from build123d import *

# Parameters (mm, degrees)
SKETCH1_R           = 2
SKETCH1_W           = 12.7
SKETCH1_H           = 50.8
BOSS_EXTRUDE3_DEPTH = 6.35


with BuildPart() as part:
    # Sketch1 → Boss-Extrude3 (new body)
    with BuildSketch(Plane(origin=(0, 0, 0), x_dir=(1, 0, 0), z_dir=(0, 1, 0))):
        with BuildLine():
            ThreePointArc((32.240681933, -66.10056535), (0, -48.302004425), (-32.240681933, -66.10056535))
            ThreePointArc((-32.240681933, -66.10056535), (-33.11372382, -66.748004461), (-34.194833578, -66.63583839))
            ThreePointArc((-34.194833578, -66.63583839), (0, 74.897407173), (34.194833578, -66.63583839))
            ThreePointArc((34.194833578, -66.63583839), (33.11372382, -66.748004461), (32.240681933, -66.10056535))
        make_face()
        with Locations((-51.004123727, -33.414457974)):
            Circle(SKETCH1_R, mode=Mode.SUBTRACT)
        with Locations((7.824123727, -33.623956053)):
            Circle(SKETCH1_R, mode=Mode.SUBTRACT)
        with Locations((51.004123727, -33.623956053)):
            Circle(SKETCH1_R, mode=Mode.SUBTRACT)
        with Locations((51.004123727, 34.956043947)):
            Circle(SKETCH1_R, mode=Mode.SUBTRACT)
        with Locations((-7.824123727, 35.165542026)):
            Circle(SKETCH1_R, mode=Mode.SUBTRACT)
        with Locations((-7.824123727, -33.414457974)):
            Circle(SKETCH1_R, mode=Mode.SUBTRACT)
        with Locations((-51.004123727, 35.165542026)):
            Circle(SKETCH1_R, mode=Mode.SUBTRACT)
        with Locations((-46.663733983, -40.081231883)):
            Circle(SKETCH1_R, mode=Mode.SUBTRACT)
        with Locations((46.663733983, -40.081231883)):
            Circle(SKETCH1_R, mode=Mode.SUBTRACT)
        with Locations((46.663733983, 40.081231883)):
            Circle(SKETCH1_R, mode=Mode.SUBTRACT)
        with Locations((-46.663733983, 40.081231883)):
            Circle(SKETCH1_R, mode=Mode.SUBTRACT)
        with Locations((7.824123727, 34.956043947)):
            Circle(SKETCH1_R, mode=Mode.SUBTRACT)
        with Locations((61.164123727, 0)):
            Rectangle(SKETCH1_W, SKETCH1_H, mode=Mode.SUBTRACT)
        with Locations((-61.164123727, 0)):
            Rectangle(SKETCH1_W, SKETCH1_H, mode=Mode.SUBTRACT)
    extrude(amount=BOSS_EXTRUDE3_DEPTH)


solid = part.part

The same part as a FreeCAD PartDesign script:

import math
import FreeCAD as App
import Part
import Sketcher
from FreeCAD import Vector
Q = App.Units.Quantity

doc = App.newDocument("Part")
body = doc.addObject("PartDesign::Body", "Body")

sketch1 = body.newObject("Sketcher::SketchObject", "Sketch")
sketch1.AttachmentSupport = (doc.getObject("XZ_Plane"), [""])
sketch1.MapMode = "FlatFace"
sketch1.addGeometry([
    Part.ArcOfCircle(Part.Circle(Vector(0, 86.4, 0), Vector(0, 0, 1), 38.1), math.radians(-148), math.radians(-32)),
    Part.ArcOfCircle(Part.Circle(Vector(33.5, 65.3, 0), Vector(0, 0, 1), 1.5), math.radians(63), math.radians(148)),
    Part.ArcOfCircle(Part.Circle(Vector(0, 0, 0), Vector(0, 0, 1), 74.9), math.radians(117), math.radians(423)),
    Part.ArcOfCircle(Part.Circle(Vector(-33.5, 65.3, 0), Vector(0, 0, 1), 1.5), math.radians(32), math.radians(117)),
    Part.Circle(Vector(51, 33.6, 0), Vector(0, 0, 1), 2),
    Part.Circle(Vector(46.7, 40.1, 0), Vector(0, 0, 1), 2),
    Part.Circle(Vector(7.8, 33.6, 0), Vector(0, 0, 1), 2),
    Part.Circle(Vector(-7.8, 33.4, 0), Vector(0, 0, 1), 2),
    Part.Circle(Vector(-46.7, 40.1, 0), Vector(0, 0, 1), 2),
    Part.Circle(Vector(-51, 33.4, 0), Vector(0, 0, 1), 2),
    Part.LineSegment(Vector(54.8, 25.4, 0), Vector(54.8, -25.4, 0)),
    Part.LineSegment(Vector(54.8, -25.4, 0), Vector(67.5, -25.4, 0)),
    Part.LineSegment(Vector(67.5, -25.4, 0), Vector(67.5, 25.4, 0)),
    Part.LineSegment(Vector(67.5, 25.4, 0), Vector(54.8, 25.4, 0)),
    Part.Circle(Vector(51, -35, 0), Vector(0, 0, 1), 2),
    Part.Circle(Vector(46.7, -40.1, 0), Vector(0, 0, 1), 2),
    Part.Circle(Vector(7.8, -35, 0), Vector(0, 0, 1), 2),
    Part.LineSegment(Vector(-67.5, 25.4, 0), Vector(-67.5, -25.4, 0)),
    Part.LineSegment(Vector(-67.5, -25.4, 0), Vector(-54.8, -25.4, 0)),
    Part.LineSegment(Vector(-54.8, -25.4, 0), Vector(-54.8, 25.4, 0)),
    Part.LineSegment(Vector(-54.8, 25.4, 0), Vector(-67.5, 25.4, 0)),
    Part.Circle(Vector(-7.8, -35.2, 0), Vector(0, 0, 1), 2),
    Part.Circle(Vector(-46.7, -40.1, 0), Vector(0, 0, 1), 2),
    Part.Circle(Vector(-51, -35.2, 0), Vector(0, 0, 1), 2),
], False)
sketch1.addConstraint([
    Sketcher.Constraint("Tangent", 0, 2, 1, 2),
    Sketcher.Constraint("Tangent", 1, 1, 2, 2),
    Sketcher.Constraint("Tangent", 2, 1, 3, 2),
    Sketcher.Constraint("Tangent", 3, 1, 0, 1),
    Sketcher.Constraint("Coincident", 10, 2, 11, 1),
    Sketcher.Constraint("Coincident", 11, 2, 12, 1),
    Sketcher.Constraint("Coincident", 12, 2, 13, 1),
    Sketcher.Constraint("Coincident", 13, 2, 10, 1),
    Sketcher.Constraint("Coincident", 17, 2, 18, 1),
    Sketcher.Constraint("Coincident", 18, 2, 19, 1),
    Sketcher.Constraint("Coincident", 19, 2, 20, 1),
    Sketcher.Constraint("Coincident", 20, 2, 17, 1),
    Sketcher.Constraint("Vertical", 10),
    Sketcher.Constraint("Horizontal", 11),
    Sketcher.Constraint("Vertical", 12),
    Sketcher.Constraint("Horizontal", 13),
    Sketcher.Constraint("Vertical", 17),
    Sketcher.Constraint("Horizontal", 18),
    Sketcher.Constraint("Vertical", 19),
    Sketcher.Constraint("Horizontal", 20),
    Sketcher.Constraint("Coincident", 2, 3, -1, 1),
    Sketcher.Constraint("Equal", 1, 3),
    Sketcher.Constraint("Equal", 4, 5),
    Sketcher.Constraint("Equal", 5, 6),
    Sketcher.Constraint("Equal", 6, 7),
    Sketcher.Constraint("Equal", 7, 8),
    Sketcher.Constraint("Equal", 8, 9),
    Sketcher.Constraint("Equal", 9, 14),
    Sketcher.Constraint("Equal", 14, 15),
    Sketcher.Constraint("Equal", 15, 16),
    Sketcher.Constraint("Equal", 16, 21),
    Sketcher.Constraint("Equal", 21, 22),
    Sketcher.Constraint("Equal", 22, 23),
    Sketcher.Constraint("Symmetric", 8, 3, 15, 3, -1, 1),
    Sketcher.Constraint("Symmetric", 5, 3, 22, 3, -1, 1),
    Sketcher.Constraint("Symmetric", 12, 2, 17, 2, -1, 1),
    Sketcher.Constraint("Symmetric", 10, 2, 19, 2, -1, 1),
    Sketcher.Constraint("Symmetric", 5, 3, 8, 3, -2),
    Sketcher.Constraint("PointOnObject", 0, 3, -2),
    Sketcher.Constraint("Horizontal", 4, 3, 6, 3),
    Sketcher.Constraint("Horizontal", 7, 3, 9, 3),
    Sketcher.Constraint("Horizontal", 14, 3, 16, 3),
    Sketcher.Constraint("Horizontal", 21, 3, 23, 3),
    Sketcher.Constraint("Horizontal", 11, 2, 17, 2),
    Sketcher.Constraint("Vertical", 4, 3, 14, 3),
    Sketcher.Constraint("Vertical", 6, 3, 16, 3),
    Sketcher.Constraint("Vertical", 7, 3, 21, 3),
    Sketcher.Constraint("Vertical", 9, 3, 23, 3),
    Sketcher.Constraint("Radius", 0, Q("1.5 in")),
    Sketcher.Constraint("DistanceY", 10, 2, 10, 1, Q("2 in")),
    Sketcher.Constraint("DistanceX", 11, 1, 11, 2, Q("0.5 in")),
    Sketcher.Constraint("DistanceX", 6, 3, 4, 3, Q("1.7 in")),
    Sketcher.Constraint("DistanceX", 9, 3, 7, 3, Q("1.7 in")),
    Sketcher.Constraint("DistanceY", 14, 3, 4, 3, Q("2.7 in")),
    Sketcher.Constraint("DistanceY", 21, 3, 7, 3, Q("2.7 in")),
    Sketcher.Constraint("Diameter", 4, Q("4 mm")),
    Sketcher.Constraint("Radius", 1, Q("1.5 mm")),
    Sketcher.Constraint("DistanceX", 14, 3, 10, 2, Q("0.15 in")),
    Sketcher.Constraint("DistanceX", 17, 2, 23, 3, Q("0.65 in")),
    Sketcher.Constraint("Radius", 2, Q("74.897407 mm")),
    Sketcher.Constraint("DistanceX", -1, 1, 1, 3, Q("33.51 mm")),
    Sketcher.Constraint("DistanceY", 7, 3, 6, 3, Q("0.209498 mm")),
    Sketcher.Constraint("DistanceX", 1, 1, 5, 3, Q("12.4689 mm")),
    Sketcher.Constraint("DistanceY", -1, 1, 5, 3, Q("40.081232 mm")),
    Sketcher.Constraint("DistanceY", 4, 3, 1, 3, Q("31.67734 mm")),
    Sketcher.Constraint("DistanceX", 5, 3, 4, 3, Q("4.34039 mm")),
])
pad1 = body.newObject("PartDesign::Pad", "Pad")
pad1.Profile = sketch1
pad1.Length = Q("0.25 in")
pad1.Reversed = True

doc.recompute()
